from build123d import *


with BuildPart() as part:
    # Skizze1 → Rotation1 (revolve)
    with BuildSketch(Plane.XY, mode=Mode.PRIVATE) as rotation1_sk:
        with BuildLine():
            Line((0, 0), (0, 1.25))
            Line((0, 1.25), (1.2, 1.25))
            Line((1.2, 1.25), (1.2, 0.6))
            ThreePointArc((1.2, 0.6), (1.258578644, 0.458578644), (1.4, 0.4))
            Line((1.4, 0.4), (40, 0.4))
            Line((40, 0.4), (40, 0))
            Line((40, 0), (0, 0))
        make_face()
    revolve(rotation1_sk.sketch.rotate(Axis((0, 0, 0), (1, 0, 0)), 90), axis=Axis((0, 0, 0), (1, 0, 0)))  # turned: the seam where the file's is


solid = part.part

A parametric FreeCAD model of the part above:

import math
import FreeCAD as App
import Part
import Sketcher
from FreeCAD import Vector
Q = App.Units.Quantity

doc = App.newDocument("Part")
params = doc.addObject("Spreadsheet::Sheet", "Params")
for row, (alias, value) in enumerate([
    ("sketch1_radius", "0.2 mm"),
    ("sketch1_width", "40 mm"),
    ("sketch1_width2", "38.6 mm"),
    ("sketch1_height", "0.4 mm"),
    ("sketch1_height2", "1.25 mm"),
    ("revolution_angle", "360 deg"),
], start=1):
    params.set(f"A{row}", alias)
    params.set(f"B{row}", "=" + value)
    params.setAlias(f"B{row}", alias)

body = doc.addObject("PartDesign::Body", "Body")

# Sketch on XY plane
sketch1 = body.newObject("Sketcher::SketchObject", "Sketch")
sketch1.AttachmentSupport = (doc.getObject("XY_Plane"), [""])
sketch1.MapMode = "FlatFace"
sketch1.addGeometry([
    Part.LineSegment(Vector(0, 1.25, 0), Vector(0, 0, 0)),  # 0
    Part.LineSegment(Vector(0, 0, 0), Vector(40, 0, 0)),  # 1
    Part.LineSegment(Vector(40, 0, 0), Vector(40, 0.4, 0)),  # 2
    Part.LineSegment(Vector(40, 0.4, 0), Vector(1.4, 0.4, 0)),  # 3
    Part.ArcOfCircle(Part.Circle(Vector(1.4, 0.6, 0), Vector(0, 0, 1), 0.2), math.radians(-180), math.radians(-90)),  # 4
    Part.LineSegment(Vector(1.2, 0.6, 0), Vector(1.2, 1.25, 0)),  # 5
    Part.LineSegment(Vector(1.2, 1.25, 0), Vector(0, 1.25, 0)),  # 6
], False)
sketch1.addConstraint([
    Sketcher.Constraint("Coincident", 0, 2, 1, 1),
    Sketcher.Constraint("Coincident", 1, 2, 2, 1),
    Sketcher.Constraint("Coincident", 2, 2, 3, 1),
    Sketcher.Constraint("Tangent", 3, 2, 4, 2),
    Sketcher.Constraint("Tangent", 4, 1, 5, 1),
    Sketcher.Constraint("Coincident", 5, 2, 6, 1),
    Sketcher.Constraint("Coincident", 6, 2, 0, 1),
    Sketcher.Constraint("Vertical", 0),
    Sketcher.Constraint("Horizontal", 1),
    Sketcher.Constraint("Vertical", 2),
    Sketcher.Constraint("Horizontal", 3),
    Sketcher.Constraint("Vertical", 5),
    Sketcher.Constraint("Horizontal", 6),
    Sketcher.Constraint("Coincident", 0, 2, -1, 1),
    Sketcher.Constraint("Radius", 4, Q("0.2 mm")),
    Sketcher.Constraint("DistanceX", 1, 1, 1, 2, Q("40 mm")),
    Sketcher.Constraint("DistanceX", 3, 2, 3, 1, Q("38.6 mm")),
    Sketcher.Constraint("DistanceY", 2, 1, 2, 2, Q("0.4 mm")),
    Sketcher.Constraint("DistanceY", 0, 2, 0, 1, Q("1.25 mm")),
])
sketch1.setExpression("Constraints[14]", "Params.sketch1_radius")
sketch1.setExpression("Constraints[15]", "Params.sketch1_width")
sketch1.setExpression("Constraints[16]", "Params.sketch1_width2")
sketch1.setExpression("Constraints[17]", "Params.sketch1_height")
sketch1.setExpression("Constraints[18]", "Params.sketch1_height2")
revolution = body.newObject("PartDesign::Revolution", "Revolution")
revolution.Profile = sketch1
revolution.ReferenceAxis = (sketch1, ["H_Axis"])
revolution.setExpression("Angle", "Params.revolution_angle")

doc.recompute()
